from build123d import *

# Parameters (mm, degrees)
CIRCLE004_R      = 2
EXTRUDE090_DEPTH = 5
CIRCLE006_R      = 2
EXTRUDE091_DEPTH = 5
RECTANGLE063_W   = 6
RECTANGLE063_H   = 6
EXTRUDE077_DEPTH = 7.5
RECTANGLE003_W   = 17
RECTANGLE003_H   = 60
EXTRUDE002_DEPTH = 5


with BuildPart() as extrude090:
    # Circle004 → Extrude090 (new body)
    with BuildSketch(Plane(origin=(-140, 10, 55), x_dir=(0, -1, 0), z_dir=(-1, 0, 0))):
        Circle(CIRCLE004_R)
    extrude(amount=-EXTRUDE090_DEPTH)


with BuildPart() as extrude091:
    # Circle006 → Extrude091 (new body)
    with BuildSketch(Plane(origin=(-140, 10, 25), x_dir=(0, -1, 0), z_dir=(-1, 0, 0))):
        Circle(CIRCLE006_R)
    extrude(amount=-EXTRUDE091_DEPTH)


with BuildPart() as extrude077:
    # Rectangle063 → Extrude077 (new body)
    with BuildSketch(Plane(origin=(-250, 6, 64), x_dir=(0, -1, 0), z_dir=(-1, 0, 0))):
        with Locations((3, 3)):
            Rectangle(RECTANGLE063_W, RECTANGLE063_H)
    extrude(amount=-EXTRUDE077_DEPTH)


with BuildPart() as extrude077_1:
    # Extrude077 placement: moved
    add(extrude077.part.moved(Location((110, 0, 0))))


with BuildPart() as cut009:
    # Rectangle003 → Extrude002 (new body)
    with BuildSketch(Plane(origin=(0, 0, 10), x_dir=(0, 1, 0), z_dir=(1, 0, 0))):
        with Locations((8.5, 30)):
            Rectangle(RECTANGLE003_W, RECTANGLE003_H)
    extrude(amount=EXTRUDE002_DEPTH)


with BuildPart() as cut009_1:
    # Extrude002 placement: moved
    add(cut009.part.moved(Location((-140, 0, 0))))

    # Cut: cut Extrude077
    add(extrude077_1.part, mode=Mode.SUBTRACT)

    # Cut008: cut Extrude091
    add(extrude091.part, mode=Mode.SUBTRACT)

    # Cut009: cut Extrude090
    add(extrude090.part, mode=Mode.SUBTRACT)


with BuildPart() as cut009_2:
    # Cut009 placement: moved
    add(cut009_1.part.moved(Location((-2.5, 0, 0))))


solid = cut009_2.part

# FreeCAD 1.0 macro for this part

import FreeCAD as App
import Part
import Sketcher

V = App.Vector
Q = App.Units.Quantity

doc = App.newDocument("Part")
body = doc.addObject("PartDesign::Body", "Body")

# Sketch on YZ plane
sketch1 = doc.addObject("Sketcher::SketchObject", "Sketch")
body.addObject(sketch1)
sketch1.AttachmentSupport = (doc.YZ_Plane, [""])
sketch1.MapMode = "FlatFace"
sketch1.AttachmentOffset = App.Placement(V(0, 0, -140), App.Rotation())
sketch1.addGeometry(Part.Circle(V(10, 55, 0), V(0, 0, 1), 2), False)
sketch1.addConstraint([
    Sketcher.Constraint("Diameter", 0, Q("4 mm")),
    Sketcher.Constraint("DistanceX", -1, 1, 0, 3, Q("10 mm")),
    Sketcher.Constraint("DistanceY", -1, 1, 0, 3, Q("55 mm")),
])
pad1 = doc.addObject("PartDesign::Pad", "Pad")
body.addObject(pad1)
pad1.Profile = sketch1
pad1.Length = 5
body2 = doc.addObject("PartDesign::Body", "Body001")

# Sketch on YZ plane
sketch2 = doc.addObject("Sketcher::SketchObject", "Sketch001")
body2.addObject(sketch2)
sketch2.AttachmentSupport = (doc.getObject("YZ_Plane001"), [""])
sketch2.MapMode = "FlatFace"
sketch2.AttachmentOffset = App.Placement(V(0, 0, -140), App.Rotation())
sketch2.addGeometry(Part.Circle(V(10, 25, 0), V(0, 0, 1), 2), False)
sketch2.addConstraint([
    Sketcher.Constraint("Diameter", 0, Q("4 mm")),
    Sketcher.Constraint("DistanceX", -1, 1, 0, 3, Q("10 mm")),
    Sketcher.Constraint("DistanceY", -1, 1, 0, 3, Q("25 mm")),
])
pad2 = doc.addObject("PartDesign::Pad", "Pad001")
body2.addObject(pad2)
pad2.Profile = sketch2
pad2.Length = 5
body3 = doc.addObject("PartDesign::Body", "Body002")

# Sketch on YZ plane
sketch3 = doc.addObject("Sketcher::SketchObject", "Sketch002")
body3.addObject(sketch3)
sketch3.AttachmentSupport = (doc.getObject("YZ_Plane002"), [""])
sketch3.MapMode = "FlatFace"
sketch3.AttachmentOffset = App.Placement(V(0, 0, -250), App.Rotation())
sketch3.addGeometry([
    Part.LineSegment(V(6, 70, 0), V(6, 64, 0)),
    Part.LineSegment(V(6, 64, 0), V(0, 64, 0)),
    Part.LineSegment(V(0, 64, 0), V(0, 70, 0)),
    Part.LineSegment(V(0, 70, 0), V(6, 70, 0)),
], False)
sketch3.addConstraint([
    Sketcher.Constraint("Coincident", 0, 2, 1, 1),
    Sketcher.Constraint("Coincident", 1, 2, 2, 1),
    Sketcher.Constraint("Coincident", 2, 2, 3, 1),
    Sketcher.Constraint("Coincident", 3, 2, 0, 1),
    Sketcher.Constraint("Vertical", 0),
    Sketcher.Constraint("Horizontal", 1),
    Sketcher.Constraint("Vertical", 2),
    Sketcher.Constraint("Horizontal", 3),
    Sketcher.Constraint("PointOnObject", 1, 2, -2),
    Sketcher.Constraint("Equal", 3, 0),
    Sketcher.Constraint("DistanceX", 1, 2, 1, 1, Q("6 mm")),
    Sketcher.Constraint("DistanceY", -1, 1, 0, 2, Q("64 mm")),
])
pad3 = doc.addObject("PartDesign::Pad", "Pad002")
body3.addObject(pad3)
pad3.Profile = sketch3
pad3.Length = 7.5
body4 = doc.addObject("PartDesign::Body", "Body003")
doc.recompute()

body3.Placement = App.Placement(V(110, 0, 0), App.Rotation(V(0, 0, 1), 0))
boolean = doc.addObject("PartDesign::Boolean", "Boolean")
body4.addObject(boolean)
boolean.Type = "Fuse"
boolean.addObjects([body3])
body5 = doc.addObject("PartDesign::Body", "Body004")

# Sketch on YZ plane
sketch4 = doc.addObject("Sketcher::SketchObject", "Sketch003")
body5.addObject(sketch4)
sketch4.AttachmentSupport = (doc.getObject("YZ_Plane004"), [""])
sketch4.MapMode = "FlatFace"
sketch4.addGeometry([
    Part.LineSegment(V(0, 70, 0), V(0, 10, 0)),
    Part.LineSegment(V(0, 10, 0), V(17, 10, 0)),
    Part.LineSegment(V(17, 10, 0), V(17, 70, 0)),
    Part.LineSegment(V(17, 70, 0), V(0, 70, 0)),
], False)
sketch4.addConstraint([
    Sketcher.Constraint("Coincident", 0, 2, 1, 1),
    Sketcher.Constraint("Coincident", 1, 2, 2, 1),
    Sketcher.Constraint("Coincident", 2, 2, 3, 1),
    Sketcher.Constraint("Coincident", 3, 2, 0, 1),
    Sketcher.Constraint("Vertical", 0),
    Sketcher.Constraint("Horizontal", 1),
    Sketcher.Constraint("Vertical", 2),
    Sketcher.Constraint("Horizontal", 3),
    Sketcher.Constraint("PointOnObject", 0, 2, -2),
    Sketcher.Constraint("DistanceX", 1, 1, 1, 2, Q("17 mm")),
    Sketcher.Constraint("DistanceY", 0, 2, 0, 1, Q("60 mm")),
    Sketcher.Constraint("DistanceY", -1, 1, 0, 2, Q("10 mm")),
])
pad4 = doc.addObject("PartDesign::Pad", "Pad003")
body5.addObject(pad4)
pad4.Profile = sketch4
pad4.Length = 5
body6 = doc.addObject("PartDesign::Body", "Body005")
doc.recompute()

body5.Placement = App.Placement(V(-140, 0, 0), App.Rotation(V(0, 0, 1), 0))
boolean2 = doc.addObject("PartDesign::Boolean", "Boolean001")
body6.addObject(boolean2)
boolean2.Type = "Fuse"
boolean2.addObjects([body5])
doc.recompute()

boolean3 = doc.addObject("PartDesign::Boolean", "Boolean002")
body6.addObject(boolean3)
boolean3.Type = "Cut"
boolean3.addObjects([body4])
doc.recompute()

boolean4 = doc.addObject("PartDesign::Boolean", "Boolean003")
body6.addObject(boolean4)
boolean4.Type = "Cut"
boolean4.addObjects([body2])
doc.recompute()

boolean5 = doc.addObject("PartDesign::Boolean", "Boolean004")
body6.addObject(boolean5)
boolean5.Type = "Cut"
boolean5.addObjects([body])
body7 = doc.addObject("PartDesign::Body", "Body006")
doc.recompute()

body6.Placement = App.Placement(V(-2.5, 0, 0), App.Rotation(V(0, 0, 1), 0))
boolean6 = doc.addObject("PartDesign::Boolean", "Boolean005")
body7.addObject(boolean6)
boolean6.Type = "Fuse"
boolean6.addObjects([body6])

doc.recompute()
